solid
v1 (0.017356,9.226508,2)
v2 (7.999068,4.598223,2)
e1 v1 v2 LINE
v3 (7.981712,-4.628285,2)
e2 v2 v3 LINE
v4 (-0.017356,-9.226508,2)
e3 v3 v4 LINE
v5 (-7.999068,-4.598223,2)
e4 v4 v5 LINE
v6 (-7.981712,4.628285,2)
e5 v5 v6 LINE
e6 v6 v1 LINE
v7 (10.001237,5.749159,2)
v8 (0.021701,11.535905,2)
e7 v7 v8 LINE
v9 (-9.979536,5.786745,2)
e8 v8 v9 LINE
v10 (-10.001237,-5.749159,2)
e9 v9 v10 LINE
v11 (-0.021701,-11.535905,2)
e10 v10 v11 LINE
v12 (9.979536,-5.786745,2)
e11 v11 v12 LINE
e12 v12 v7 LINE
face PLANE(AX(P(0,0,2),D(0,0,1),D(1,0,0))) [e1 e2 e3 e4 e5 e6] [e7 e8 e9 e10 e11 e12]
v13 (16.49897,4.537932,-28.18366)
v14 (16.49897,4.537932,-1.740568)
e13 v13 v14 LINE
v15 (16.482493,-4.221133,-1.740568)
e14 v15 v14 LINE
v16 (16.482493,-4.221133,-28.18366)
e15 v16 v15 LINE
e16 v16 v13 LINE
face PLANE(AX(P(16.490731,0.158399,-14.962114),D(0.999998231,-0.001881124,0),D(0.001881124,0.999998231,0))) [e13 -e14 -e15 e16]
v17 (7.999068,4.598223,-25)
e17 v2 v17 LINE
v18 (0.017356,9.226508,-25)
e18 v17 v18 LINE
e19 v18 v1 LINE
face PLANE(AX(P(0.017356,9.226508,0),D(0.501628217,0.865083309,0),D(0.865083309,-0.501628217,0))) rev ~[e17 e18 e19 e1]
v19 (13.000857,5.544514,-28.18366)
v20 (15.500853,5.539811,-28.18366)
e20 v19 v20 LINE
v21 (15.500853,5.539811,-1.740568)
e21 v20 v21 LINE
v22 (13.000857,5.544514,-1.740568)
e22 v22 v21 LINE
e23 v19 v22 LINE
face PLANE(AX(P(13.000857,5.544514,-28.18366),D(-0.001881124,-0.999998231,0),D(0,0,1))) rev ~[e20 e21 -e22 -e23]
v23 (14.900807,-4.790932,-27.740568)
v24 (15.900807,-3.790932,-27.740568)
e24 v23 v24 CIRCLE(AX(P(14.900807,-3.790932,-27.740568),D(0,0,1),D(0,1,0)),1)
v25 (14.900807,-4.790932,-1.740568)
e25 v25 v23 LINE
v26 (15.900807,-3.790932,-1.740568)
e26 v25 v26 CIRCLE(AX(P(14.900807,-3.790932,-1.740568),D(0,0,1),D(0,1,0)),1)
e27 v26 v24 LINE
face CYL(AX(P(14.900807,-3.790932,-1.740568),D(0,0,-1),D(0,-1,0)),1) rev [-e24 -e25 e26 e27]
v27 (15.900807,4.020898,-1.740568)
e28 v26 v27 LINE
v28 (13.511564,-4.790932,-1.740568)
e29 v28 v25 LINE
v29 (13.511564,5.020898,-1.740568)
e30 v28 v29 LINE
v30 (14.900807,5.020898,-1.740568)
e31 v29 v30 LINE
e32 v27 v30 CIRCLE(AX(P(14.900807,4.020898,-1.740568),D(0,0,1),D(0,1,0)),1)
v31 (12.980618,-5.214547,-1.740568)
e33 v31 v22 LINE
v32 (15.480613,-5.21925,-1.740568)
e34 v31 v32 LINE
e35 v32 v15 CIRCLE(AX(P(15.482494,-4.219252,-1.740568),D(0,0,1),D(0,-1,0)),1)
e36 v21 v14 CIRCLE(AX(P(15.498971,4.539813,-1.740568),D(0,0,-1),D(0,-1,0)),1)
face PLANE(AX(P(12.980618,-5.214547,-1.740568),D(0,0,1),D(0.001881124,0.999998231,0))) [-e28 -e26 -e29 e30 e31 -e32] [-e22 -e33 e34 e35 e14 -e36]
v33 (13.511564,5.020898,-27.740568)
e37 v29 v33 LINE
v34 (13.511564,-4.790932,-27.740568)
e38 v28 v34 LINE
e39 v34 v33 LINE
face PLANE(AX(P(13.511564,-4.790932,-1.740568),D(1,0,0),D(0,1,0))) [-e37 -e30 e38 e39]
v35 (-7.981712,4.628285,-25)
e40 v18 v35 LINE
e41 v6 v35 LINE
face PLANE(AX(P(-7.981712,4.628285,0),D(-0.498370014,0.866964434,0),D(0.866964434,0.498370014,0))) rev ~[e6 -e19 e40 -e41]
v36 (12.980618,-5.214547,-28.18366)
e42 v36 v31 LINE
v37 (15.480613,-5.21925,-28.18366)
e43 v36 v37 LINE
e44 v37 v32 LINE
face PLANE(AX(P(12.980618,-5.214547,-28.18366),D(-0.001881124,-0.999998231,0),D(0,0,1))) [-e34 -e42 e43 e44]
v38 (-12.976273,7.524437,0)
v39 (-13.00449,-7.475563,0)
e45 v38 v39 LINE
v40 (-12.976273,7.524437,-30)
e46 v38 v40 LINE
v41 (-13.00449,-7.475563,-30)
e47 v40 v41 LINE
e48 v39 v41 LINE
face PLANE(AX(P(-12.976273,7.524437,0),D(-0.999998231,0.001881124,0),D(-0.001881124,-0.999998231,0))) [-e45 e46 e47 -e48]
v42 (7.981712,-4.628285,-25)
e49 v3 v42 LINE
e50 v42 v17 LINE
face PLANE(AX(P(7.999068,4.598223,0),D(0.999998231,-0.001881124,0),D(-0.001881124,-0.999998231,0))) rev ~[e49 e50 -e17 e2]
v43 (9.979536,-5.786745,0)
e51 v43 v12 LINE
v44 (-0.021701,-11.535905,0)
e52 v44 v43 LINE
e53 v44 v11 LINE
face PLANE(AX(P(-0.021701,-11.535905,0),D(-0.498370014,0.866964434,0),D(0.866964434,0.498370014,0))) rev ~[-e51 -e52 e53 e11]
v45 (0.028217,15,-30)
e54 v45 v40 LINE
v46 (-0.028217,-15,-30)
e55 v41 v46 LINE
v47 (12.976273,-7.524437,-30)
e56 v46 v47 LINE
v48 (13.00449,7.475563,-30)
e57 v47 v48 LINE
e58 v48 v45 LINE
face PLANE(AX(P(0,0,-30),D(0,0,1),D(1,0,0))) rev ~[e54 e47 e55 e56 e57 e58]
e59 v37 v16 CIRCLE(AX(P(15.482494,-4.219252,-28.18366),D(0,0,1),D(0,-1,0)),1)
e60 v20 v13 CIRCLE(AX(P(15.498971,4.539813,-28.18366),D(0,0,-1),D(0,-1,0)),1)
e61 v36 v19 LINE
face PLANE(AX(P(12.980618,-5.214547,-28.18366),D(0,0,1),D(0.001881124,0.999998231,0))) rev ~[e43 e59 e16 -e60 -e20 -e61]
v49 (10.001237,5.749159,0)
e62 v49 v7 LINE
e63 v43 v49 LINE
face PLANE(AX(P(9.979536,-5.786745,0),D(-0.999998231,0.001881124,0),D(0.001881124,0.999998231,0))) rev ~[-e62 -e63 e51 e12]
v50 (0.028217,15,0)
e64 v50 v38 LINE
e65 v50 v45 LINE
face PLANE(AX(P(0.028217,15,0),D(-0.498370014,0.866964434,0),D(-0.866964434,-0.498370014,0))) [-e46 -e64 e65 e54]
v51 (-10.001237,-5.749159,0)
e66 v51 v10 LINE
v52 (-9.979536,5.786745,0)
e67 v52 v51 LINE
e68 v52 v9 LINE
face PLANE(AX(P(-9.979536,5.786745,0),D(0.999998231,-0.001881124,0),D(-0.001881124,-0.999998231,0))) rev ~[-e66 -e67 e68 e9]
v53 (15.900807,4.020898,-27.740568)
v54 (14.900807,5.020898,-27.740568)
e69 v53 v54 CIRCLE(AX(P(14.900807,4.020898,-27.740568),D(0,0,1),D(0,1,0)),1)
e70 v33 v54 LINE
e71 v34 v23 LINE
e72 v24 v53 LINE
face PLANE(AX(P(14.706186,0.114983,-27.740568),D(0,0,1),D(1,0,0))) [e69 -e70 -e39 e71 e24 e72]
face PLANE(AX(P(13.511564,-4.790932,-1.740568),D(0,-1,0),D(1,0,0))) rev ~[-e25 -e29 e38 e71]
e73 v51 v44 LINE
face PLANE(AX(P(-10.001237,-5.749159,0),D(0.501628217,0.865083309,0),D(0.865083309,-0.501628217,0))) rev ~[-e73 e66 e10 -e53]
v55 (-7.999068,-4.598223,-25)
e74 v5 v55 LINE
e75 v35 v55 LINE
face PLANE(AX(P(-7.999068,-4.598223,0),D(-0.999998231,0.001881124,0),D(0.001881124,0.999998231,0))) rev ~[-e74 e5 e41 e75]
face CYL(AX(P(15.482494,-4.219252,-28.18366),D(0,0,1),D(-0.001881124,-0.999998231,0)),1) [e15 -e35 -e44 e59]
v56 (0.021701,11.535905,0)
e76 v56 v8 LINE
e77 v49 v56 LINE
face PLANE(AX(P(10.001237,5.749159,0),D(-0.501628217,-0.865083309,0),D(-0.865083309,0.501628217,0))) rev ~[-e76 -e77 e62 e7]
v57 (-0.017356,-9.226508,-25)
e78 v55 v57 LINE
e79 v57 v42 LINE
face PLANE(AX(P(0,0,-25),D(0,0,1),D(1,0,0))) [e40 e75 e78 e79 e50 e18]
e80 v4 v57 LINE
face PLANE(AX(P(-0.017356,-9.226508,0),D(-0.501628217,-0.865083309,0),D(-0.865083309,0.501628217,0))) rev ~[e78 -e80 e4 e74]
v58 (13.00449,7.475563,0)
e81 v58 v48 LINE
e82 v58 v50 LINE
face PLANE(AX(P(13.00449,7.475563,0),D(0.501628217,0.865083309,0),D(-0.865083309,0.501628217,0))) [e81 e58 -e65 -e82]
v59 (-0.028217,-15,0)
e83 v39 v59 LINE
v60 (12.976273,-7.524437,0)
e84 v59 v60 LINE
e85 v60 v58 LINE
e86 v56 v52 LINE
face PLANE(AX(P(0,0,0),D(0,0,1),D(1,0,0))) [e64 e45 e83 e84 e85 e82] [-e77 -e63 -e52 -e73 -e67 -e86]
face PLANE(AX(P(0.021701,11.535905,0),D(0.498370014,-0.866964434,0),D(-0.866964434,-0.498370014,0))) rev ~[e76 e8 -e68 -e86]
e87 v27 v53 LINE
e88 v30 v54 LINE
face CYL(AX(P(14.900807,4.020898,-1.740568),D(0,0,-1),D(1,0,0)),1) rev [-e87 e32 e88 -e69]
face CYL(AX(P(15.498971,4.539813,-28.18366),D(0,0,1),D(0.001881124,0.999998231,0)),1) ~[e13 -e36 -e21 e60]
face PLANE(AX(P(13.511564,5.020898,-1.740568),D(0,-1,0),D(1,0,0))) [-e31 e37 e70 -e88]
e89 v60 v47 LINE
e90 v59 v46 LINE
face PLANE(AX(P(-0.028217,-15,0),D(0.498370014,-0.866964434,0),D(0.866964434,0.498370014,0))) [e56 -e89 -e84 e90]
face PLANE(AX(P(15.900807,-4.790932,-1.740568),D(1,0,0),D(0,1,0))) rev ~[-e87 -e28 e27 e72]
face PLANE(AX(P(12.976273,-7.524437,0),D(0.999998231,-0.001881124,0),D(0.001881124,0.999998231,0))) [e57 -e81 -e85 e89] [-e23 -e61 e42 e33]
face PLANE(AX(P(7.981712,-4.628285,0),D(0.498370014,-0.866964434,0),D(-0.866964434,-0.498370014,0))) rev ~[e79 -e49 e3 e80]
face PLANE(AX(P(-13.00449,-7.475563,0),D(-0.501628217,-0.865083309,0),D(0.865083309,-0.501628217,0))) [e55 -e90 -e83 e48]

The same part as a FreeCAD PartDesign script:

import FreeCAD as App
import Part
import Sketcher
Q = App.Units.Quantity


def edges_at(feature, points):
    """Names of the edges that pass closest to the given points."""
    edges = feature.Shape.Edges
    near = lambda p: min(range(len(edges)), key=lambda i: edges[i].distToShape(Part.Vertex(*p))[0])
    return sorted({f"Edge{near(p) + 1}" for p in points})

doc = App.newDocument("Part")
body = doc.addObject("PartDesign::Body", "Body")

sketch1 = doc.addObject("Sketcher::SketchObject", "Sketch")
body.addObject(sketch1)
sketch1.AttachmentSupport = (doc.XY_Plane, [""])
sketch1.MapMode = "FlatFace"
sketch1.addGeometry([
    Part.LineSegment(App.Vector(13, 7, 0), App.Vector(0, 15, 0)),
    Part.LineSegment(App.Vector(0, 15, 0), App.Vector(-13, 8, 0)),
    Part.LineSegment(App.Vector(-13, 8, 0), App.Vector(-13, -7, 0)),
    Part.LineSegment(App.Vector(-13, -7, 0), App.Vector(0, -15, 0)),
    Part.LineSegment(App.Vector(0, -15, 0), App.Vector(13, -8, 0)),
    Part.LineSegment(App.Vector(13, -8, 0), App.Vector(13, 7, 0)),
], False)
sketch1.addConstraint([
    Sketcher.Constraint("Coincident", 0, 2, 1, 1),
    Sketcher.Constraint("Coincident", 1, 2, 2, 1),
    Sketcher.Constraint("Coincident", 2, 2, 3, 1),
    Sketcher.Constraint("Coincident", 3, 2, 4, 1),
    Sketcher.Constraint("Coincident", 4, 2, 5, 1),
    Sketcher.Constraint("Coincident", 5, 2, 0, 1),
    Sketcher.Constraint("Symmetric", 0, 2, 3, 2, -1, 1),
    Sketcher.Constraint("Symmetric", 1, 2, 4, 2, -1, 1),
    Sketcher.Constraint("Symmetric", 2, 2, 5, 2, -1, 1),
    Sketcher.Constraint("Equal", 0, 1),
    Sketcher.Constraint("Equal", 1, 2),
    Sketcher.Constraint("DistanceY", -1, 1, 0, 2, Q("15 mm")),
    Sketcher.Constraint("DistanceY", 2, 2, 1, 2, Q("15 mm")),
    Sketcher.Constraint("DistanceX", 2, 2, -1, 1, Q("13.00449 mm")),
    Sketcher.Constraint("DistanceX", 1, 2, 0, 2, Q("13.00449 mm")),
])
pad1 = doc.addObject("PartDesign::Pad", "Pad")
body.addObject(pad1)
pad1.Profile = sketch1
pad1.Length = 30
pad1.Reversed = True

sketch2 = doc.addObject("Sketcher::SketchObject", "Sketch001")
body.addObject(sketch2)
sketch2.AttachmentSupport = (doc.XY_Plane, [""])
sketch2.MapMode = "FlatFace"
sketch2.addGeometry([
    Part.LineSegment(App.Vector(8, -5, 0), App.Vector(8, 5, 0)),
    Part.LineSegment(App.Vector(8, 5, 0), App.Vector(0, 9, 0)),
    Part.LineSegment(App.Vector(0, 9, 0), App.Vector(-8, 5, 0)),
    Part.LineSegment(App.Vector(-8, 5, 0), App.Vector(-8, -5, 0)),
    Part.LineSegment(App.Vector(-8, -5, 0), App.Vector(0, -9, 0)),
    Part.LineSegment(App.Vector(0, -9, 0), App.Vector(8, -5, 0)),
], False)
sketch2.addConstraint([
    Sketcher.Constraint("Coincident", 0, 2, 1, 1),
    Sketcher.Constraint("Coincident", 1, 2, 2, 1),
    Sketcher.Constraint("Coincident", 2, 2, 3, 1),
    Sketcher.Constraint("Coincident", 3, 2, 4, 1),
    Sketcher.Constraint("Coincident", 4, 2, 5, 1),
    Sketcher.Constraint("Coincident", 5, 2, 0, 1),
    Sketcher.Constraint("Symmetric", 0, 2, 3, 2, -1, 1),
    Sketcher.Constraint("Symmetric", 1, 2, 4, 2, -1, 1),
    Sketcher.Constraint("Symmetric", 2, 2, 5, 2, -1, 1),
    Sketcher.Constraint("Equal", 0, 1),
    Sketcher.Constraint("Equal", 1, 2),
    Sketcher.Constraint("DistanceX", -1, 1, 0, 2, Q("7.999068 mm")),
    Sketcher.Constraint("DistanceX", 2, 2, -1, 1, Q("7.981712 mm")),
    Sketcher.Constraint("DistanceX", 1, 2, 0, 2, Q("7.981712 mm")),
    Sketcher.Constraint("DistanceY", 3, 2, 1, 2, Q("13.82473 mm")),
])
pocket1 = doc.addObject("PartDesign::Pocket", "Pocket")
body.addObject(pocket1)
pocket1.Profile = sketch2
pocket1.Length = 25

sketch3 = doc.addObject("Sketcher::SketchObject", "Sketch002")
body.addObject(sketch3)
sketch3.AttachmentSupport = (doc.XY_Plane, [""])
sketch3.MapMode = "FlatFace"
sketch3.addGeometry([
    Part.LineSegment(App.Vector(-10, 6, 0), App.Vector(-10, -6, 0)),
    Part.LineSegment(App.Vector(-10, -6, 0), App.Vector(0, -12, 0)),
    Part.LineSegment(App.Vector(0, -12, 0), App.Vector(10, -6, 0)),
    Part.LineSegment(App.Vector(10, -6, 0), App.Vector(10, 6, 0)),
    Part.LineSegment(App.Vector(10, 6, 0), App.Vector(0, 12, 0)),
    Part.LineSegment(App.Vector(0, 12, 0), App.Vector(-10, 6, 0)),
    Part.LineSegment(App.Vector(-8, 5, 0), App.Vector(0, 9, 0)),
    Part.LineSegment(App.Vector(0, 9, 0), App.Vector(8, 5, 0)),
    Part.LineSegment(App.Vector(8, 5, 0), App.Vector(8, -5, 0)),
    Part.LineSegment(App.Vector(8, -5, 0), App.Vector(0, -9, 0)),
    Part.LineSegment(App.Vector(0, -9, 0), App.Vector(-8, -5, 0)),
    Part.LineSegment(App.Vector(-8, -5, 0), App.Vector(-8, 5, 0)),
], False)
sketch3.addConstraint([
    Sketcher.Constraint("Coincident", 0, 2, 1, 1),
    Sketcher.Constraint("Coincident", 1, 2, 2, 1),
    Sketcher.Constraint("Coincident", 2, 2, 3, 1),
    Sketcher.Constraint("Coincident", 3, 2, 4, 1),
    Sketcher.Constraint("Coincident", 4, 2, 5, 1),
    Sketcher.Constraint("Coincident", 5, 2, 0, 1),
    Sketcher.Constraint("Coincident", 6, 2, 7, 1),
    Sketcher.Constraint("Coincident", 7, 2, 8, 1),
    Sketcher.Constraint("Coincident", 8, 2, 9, 1),
    Sketcher.Constraint("Coincident", 9, 2, 10, 1),
    Sketcher.Constraint("Coincident", 10, 2, 11, 1),
    Sketcher.Constraint("Coincident", 11, 2, 6, 1),
    Sketcher.Constraint("Symmetric", 0, 2, 3, 2, -1, 1),
    Sketcher.Constraint("Symmetric", 1, 2, 4, 2, -1, 1),
    Sketcher.Constraint("Symmetric", 2, 2, 5, 2, -1, 1),
    Sketcher.Constraint("Symmetric", 6, 2, 9, 2, -1, 1),
    Sketcher.Constraint("Symmetric", 7, 2, 10, 2, -1, 1),
    Sketcher.Constraint("Symmetric", 8, 2, 11, 2, -1, 1),
    Sketcher.Constraint("Parallel", 5, 6),
    Sketcher.Constraint("Parallel", 4, 7),
    Sketcher.Constraint("Parallel", 3, 8),
    Sketcher.Constraint("Equal", 0, 1),
    Sketcher.Constraint("Equal", 1, 2),
    Sketcher.Constraint("Equal", 6, 7),
    Sketcher.Constraint("Equal", 7, 8),
    Sketcher.Constraint("DistanceX", 1, 2, -1, 1, Q("0.021701 mm")),
    Sketcher.Constraint("DistanceX", 2, 2, 3, 2, Q("0.021701 mm")),
    Sketcher.Constraint("DistanceY", 0, 2, -1, 1, Q("5.749159 mm")),
    Sketcher.Constraint("DistanceX", -1, 1, 7, 2, Q("7.999068 mm")),
    Sketcher.Constraint("DistanceY", 1, 2, 2, 2, Q("5.749159 mm")),
])
pad2 = doc.addObject("PartDesign::Pad", "Pad001")
body.addObject(pad2)
pad2.Profile = sketch3
pad2.Length = 2

sketch4 = doc.addObject("Sketcher::SketchObject", "Sketch003")
body.addObject(sketch4)
sketch4.Placement = App.Placement(App.Vector(12.990381, -0.024437, 0), App.Rotation(App.Vector(0.001881124, 0.999998231, 0), App.Vector(0, 0, 1.000000001), App.Vector(0.999998231, -0.001881124, 0), "ZXY"))
sketch4.addGeometry([
    Part.LineSegment(App.Vector(-5, -2, 0), App.Vector(-5, -28, 0)),
    Part.LineSegment(App.Vector(-5, -28, 0), App.Vector(6, -28, 0)),
    Part.LineSegment(App.Vector(6, -28, 0), App.Vector(6, -2, 0)),
    Part.LineSegment(App.Vector(6, -2, 0), App.Vector(-5, -2, 0)),
], False)
sketch4.addConstraint([
    Sketcher.Constraint("Coincident", 0, 2, 1, 1),
    Sketcher.Constraint("Coincident", 1, 2, 2, 1),
    Sketcher.Constraint("Coincident", 2, 2, 3, 1),
    Sketcher.Constraint("Coincident", 3, 2, 0, 1),
    Sketcher.Constraint("Vertical", 0),
    Sketcher.Constraint("Horizontal", 1),
    Sketcher.Constraint("Vertical", 2),
    Sketcher.Constraint("Horizontal", 3),
    Sketcher.Constraint("DistanceX", 1, 1, 1, 2, Q("10.75908 mm")),
    Sketcher.Constraint("DistanceY", 0, 2, 0, 1, Q("26.443092 mm")),
    Sketcher.Constraint("DistanceX", 0, 2, -1, 1, Q("5.19012 mm")),
    Sketcher.Constraint("DistanceY", 0, 2, -1, 1, Q("28.18366 mm")),
])
pad3 = doc.addObject("PartDesign::Pad", "Pad002")
body.addObject(pad3)
pad3.Profile = sketch4
pad3.Length = 3.5

sketch5 = doc.addObject("Sketcher::SketchObject", "Sketch004")
body.addObject(sketch5)
sketch5.AttachmentSupport = (doc.XY_Plane, [""])
sketch5.MapMode = "FlatFace"
sketch5.AttachmentOffset = App.Placement(App.Vector(0, 0, -1.740568), App.Rotation())
sketch5.addGeometry([
    Part.LineSegment(App.Vector(13.5, 5, 0), App.Vector(13.5, -4.8, 0)),
    Part.LineSegment(App.Vector(13.5, -4.8, 0), App.Vector(15.9, -4.8, 0)),
    Part.LineSegment(App.Vector(15.9, -4.8, 0), App.Vector(15.9, 5, 0)),
    Part.LineSegment(App.Vector(15.9, 5, 0), App.Vector(13.5, 5, 0)),
], False)
sketch5.addConstraint([
    Sketcher.Constraint("Coincident", 0, 2, 1, 1),
    Sketcher.Constraint("Coincident", 1, 2, 2, 1),
    Sketcher.Constraint("Coincident", 2, 2, 3, 1),
    Sketcher.Constraint("Coincident", 3, 2, 0, 1),
    Sketcher.Constraint("Vertical", 0),
    Sketcher.Constraint("Horizontal", 1),
    Sketcher.Constraint("Vertical", 2),
    Sketcher.Constraint("Horizontal", 3),
    Sketcher.Constraint("DistanceY", 0, 2, 0, 1, Q("9.81183 mm")),
    Sketcher.Constraint("DistanceY", -1, 1, 2, 2, Q("5.020898 mm")),
    Sketcher.Constraint("DistanceX", 1, 1, 1, 2, Q("2.389244 mm")),
    Sketcher.Constraint("DistanceX", -1, 1, 0, 2, Q("13.511564 mm")),
])
pocket2 = doc.addObject("PartDesign::Pocket", "Pocket001")
body.addObject(pocket2)
pocket2.Profile = sketch5
pocket2.Length = 26
doc.recompute()

fillet = doc.addObject("PartDesign::Fillet", "Fillet")
body.addObject(fillet)
fillet.Base = (pocket2, edges_at(pocket2, [
    (16.481, -5.221, -14.962),
    (16.501, 5.538, -14.962),
    (15.901, 5.021, -14.741),
    (15.901, -4.791, -14.741),
]))
fillet.Radius = 1

doc.recompute()
